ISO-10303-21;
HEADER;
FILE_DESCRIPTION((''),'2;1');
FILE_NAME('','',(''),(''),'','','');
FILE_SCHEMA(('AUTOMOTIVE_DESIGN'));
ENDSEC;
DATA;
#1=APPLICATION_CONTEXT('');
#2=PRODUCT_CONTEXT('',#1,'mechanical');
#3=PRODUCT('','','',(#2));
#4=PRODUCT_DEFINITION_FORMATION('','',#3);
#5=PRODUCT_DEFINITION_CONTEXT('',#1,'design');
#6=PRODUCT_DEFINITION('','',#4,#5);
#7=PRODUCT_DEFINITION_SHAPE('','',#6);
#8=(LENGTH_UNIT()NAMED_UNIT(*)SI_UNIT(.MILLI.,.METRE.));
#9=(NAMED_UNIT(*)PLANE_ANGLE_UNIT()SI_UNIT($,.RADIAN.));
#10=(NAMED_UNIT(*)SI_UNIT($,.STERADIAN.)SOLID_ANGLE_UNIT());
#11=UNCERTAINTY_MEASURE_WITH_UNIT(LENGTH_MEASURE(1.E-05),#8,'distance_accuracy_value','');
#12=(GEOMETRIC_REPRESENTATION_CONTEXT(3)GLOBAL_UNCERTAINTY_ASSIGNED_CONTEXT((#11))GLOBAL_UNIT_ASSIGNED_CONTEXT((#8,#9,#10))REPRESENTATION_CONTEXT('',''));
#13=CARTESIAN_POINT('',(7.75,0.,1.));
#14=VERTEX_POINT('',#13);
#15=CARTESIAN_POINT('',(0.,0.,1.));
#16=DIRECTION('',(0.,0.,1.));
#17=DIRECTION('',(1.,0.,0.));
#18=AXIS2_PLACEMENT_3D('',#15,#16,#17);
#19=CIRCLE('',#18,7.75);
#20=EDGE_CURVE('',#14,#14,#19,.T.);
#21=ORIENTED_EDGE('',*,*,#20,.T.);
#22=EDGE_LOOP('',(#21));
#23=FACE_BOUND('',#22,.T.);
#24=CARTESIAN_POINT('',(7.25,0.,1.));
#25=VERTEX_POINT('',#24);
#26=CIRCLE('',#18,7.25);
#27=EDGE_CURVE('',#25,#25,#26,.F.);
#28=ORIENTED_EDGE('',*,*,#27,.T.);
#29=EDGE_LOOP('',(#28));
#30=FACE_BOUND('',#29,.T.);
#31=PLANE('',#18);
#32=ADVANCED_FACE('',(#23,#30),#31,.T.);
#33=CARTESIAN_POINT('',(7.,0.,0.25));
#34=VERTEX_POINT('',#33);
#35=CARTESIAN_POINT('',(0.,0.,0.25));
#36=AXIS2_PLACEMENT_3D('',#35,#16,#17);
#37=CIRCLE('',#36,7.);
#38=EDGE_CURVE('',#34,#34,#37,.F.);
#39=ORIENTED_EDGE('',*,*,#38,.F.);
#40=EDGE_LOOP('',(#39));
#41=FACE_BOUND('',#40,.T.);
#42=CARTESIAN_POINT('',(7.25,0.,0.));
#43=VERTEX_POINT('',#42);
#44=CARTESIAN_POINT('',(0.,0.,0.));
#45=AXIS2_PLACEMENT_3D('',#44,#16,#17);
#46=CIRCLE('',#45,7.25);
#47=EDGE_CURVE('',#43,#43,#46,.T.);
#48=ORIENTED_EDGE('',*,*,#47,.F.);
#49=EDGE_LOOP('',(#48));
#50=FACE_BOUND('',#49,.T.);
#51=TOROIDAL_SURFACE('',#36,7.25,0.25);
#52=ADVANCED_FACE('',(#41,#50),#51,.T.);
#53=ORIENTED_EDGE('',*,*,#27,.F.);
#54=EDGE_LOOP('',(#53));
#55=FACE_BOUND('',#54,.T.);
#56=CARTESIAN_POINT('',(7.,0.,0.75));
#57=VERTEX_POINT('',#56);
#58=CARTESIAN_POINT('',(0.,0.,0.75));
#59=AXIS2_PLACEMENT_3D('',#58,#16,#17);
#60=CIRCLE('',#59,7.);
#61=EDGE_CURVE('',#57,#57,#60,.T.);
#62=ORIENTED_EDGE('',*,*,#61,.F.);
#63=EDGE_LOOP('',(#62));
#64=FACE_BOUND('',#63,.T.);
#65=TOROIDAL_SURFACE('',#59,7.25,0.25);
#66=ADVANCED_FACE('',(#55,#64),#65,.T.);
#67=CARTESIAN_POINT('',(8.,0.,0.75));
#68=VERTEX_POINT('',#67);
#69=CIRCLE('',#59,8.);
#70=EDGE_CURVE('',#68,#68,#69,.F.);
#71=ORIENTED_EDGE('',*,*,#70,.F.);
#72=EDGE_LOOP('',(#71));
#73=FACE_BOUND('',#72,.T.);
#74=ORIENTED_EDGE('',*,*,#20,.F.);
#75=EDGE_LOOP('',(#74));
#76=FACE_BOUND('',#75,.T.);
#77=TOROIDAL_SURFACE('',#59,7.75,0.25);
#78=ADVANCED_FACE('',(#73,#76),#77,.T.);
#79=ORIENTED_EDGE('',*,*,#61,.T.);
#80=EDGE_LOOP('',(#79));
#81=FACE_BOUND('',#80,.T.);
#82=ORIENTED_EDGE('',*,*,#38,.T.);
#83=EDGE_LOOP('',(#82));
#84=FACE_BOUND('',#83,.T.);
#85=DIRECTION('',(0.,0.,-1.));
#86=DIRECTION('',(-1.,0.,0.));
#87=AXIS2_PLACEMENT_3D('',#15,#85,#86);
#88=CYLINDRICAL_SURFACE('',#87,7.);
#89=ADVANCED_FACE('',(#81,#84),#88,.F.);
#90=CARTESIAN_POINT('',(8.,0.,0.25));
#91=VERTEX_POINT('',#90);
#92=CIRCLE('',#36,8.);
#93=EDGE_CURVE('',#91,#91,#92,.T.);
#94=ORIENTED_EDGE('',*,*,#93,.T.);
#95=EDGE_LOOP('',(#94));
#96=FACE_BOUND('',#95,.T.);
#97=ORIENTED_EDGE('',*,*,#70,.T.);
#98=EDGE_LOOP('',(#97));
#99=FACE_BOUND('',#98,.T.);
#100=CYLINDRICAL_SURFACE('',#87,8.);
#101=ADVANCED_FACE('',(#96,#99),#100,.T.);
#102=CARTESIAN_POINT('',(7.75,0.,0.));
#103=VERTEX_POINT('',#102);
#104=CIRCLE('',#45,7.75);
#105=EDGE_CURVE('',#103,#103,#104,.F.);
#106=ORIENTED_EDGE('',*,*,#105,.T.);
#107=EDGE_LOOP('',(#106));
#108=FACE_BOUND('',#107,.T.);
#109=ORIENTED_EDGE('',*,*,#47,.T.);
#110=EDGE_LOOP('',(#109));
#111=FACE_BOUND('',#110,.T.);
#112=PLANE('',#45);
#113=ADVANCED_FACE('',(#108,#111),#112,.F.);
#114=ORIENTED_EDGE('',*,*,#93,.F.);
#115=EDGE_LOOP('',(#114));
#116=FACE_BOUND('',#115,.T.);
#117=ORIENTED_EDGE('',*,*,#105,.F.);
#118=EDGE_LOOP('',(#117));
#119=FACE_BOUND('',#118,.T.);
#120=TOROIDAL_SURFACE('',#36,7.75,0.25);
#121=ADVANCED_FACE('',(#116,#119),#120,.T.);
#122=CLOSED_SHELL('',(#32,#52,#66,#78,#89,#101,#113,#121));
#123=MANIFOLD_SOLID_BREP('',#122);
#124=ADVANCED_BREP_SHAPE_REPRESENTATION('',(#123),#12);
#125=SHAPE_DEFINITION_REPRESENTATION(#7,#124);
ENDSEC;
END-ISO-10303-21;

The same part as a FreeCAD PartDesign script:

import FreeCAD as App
import Part
import Sketcher
from FreeCAD import Vector


def edges_at(feature, points):
    """Names of the edges that pass closest to the given points."""
    edges = feature.Shape.Edges
    near = lambda p: min(range(len(edges)), key=lambda i: edges[i].distToShape(Part.Vertex(*p))[0])
    return sorted({f"Edge{near(p) + 1}" for p in points})

doc = App.newDocument("Part")
params = doc.addObject("Spreadsheet::Sheet", "Params")
for row, (alias, value) in enumerate([
    ("sketch1_diameter", "16 mm"),
    ("sketch1_diameter2", "14 mm"),
    ("pad1_length", "1 mm"),
    ("fillet_radius", "0.25 mm"),
    ("fillet2_radius", "0.25 mm"),
    ("fillet3_radius", "0.25 mm"),
    ("fillet4_radius", "0.25 mm"),
], start=1):
    params.set(f"A{row}", alias)
    params.set(f"B{row}", "=" + value)
    params.setAlias(f"B{row}", alias)

body = doc.addObject("PartDesign::Body", "Body")

# Sketch on XY plane
sketch1 = doc.addObject("Sketcher::SketchObject", "Sketch")
body.addObject(sketch1)
sketch1.AttachmentSupport = (doc.XY_Plane, [""])
sketch1.MapMode = "FlatFace"
sketch1.addGeometry([
    Part.Circle(Vector(0, 0, 0), Vector(0, 0, 1), 8),
    Part.Circle(Vector(0, 0, 0), Vector(0, 0, 1), 7),
], False)
sketch1.addConstraint([
    Sketcher.Constraint("Coincident", 0, 3, -1, 1),
    Sketcher.Constraint("Coincident", 1, 3, -1, 1),
    Sketcher.Constraint("Diameter", 0, 16.0),
    Sketcher.Constraint("Diameter", 1, 14.0),
])
sketch1.setExpression("Constraints[2]", "Params.sketch1_diameter")
sketch1.setExpression("Constraints[3]", "Params.sketch1_diameter2")
pad1 = doc.addObject("PartDesign::Pad", "Pad")
body.addObject(pad1)
pad1.Profile = sketch1
pad1.setExpression("Length", "Params.pad1_length")
doc.recompute()

fillet = doc.addObject("PartDesign::Fillet", "Fillet")
body.addObject(fillet)
fillet.Base = (pad1, edges_at(pad1, [(-8, 0, 1)]))
fillet.setExpression("Radius", "Params.fillet_radius")
doc.recompute()

fillet2 = doc.addObject("PartDesign::Fillet", "Fillet001")
body.addObject(fillet2)
fillet2.Base = (fillet, edges_at(fillet, [(-7, 0, 1)]))
fillet2.setExpression("Radius", "Params.fillet2_radius")
doc.recompute()

fillet3 = doc.addObject("PartDesign::Fillet", "Fillet002")
body.addObject(fillet3)
fillet3.Base = (fillet2, edges_at(fillet2, [(-8, 0, 0)]))
fillet3.setExpression("Radius", "Params.fillet3_radius")
doc.recompute()

fillet4 = doc.addObject("PartDesign::Fillet", "Fillet003")
body.addObject(fillet4)
fillet4.Base = (fillet3, edges_at(fillet3, [(-7, 0, 0)]))
fillet4.setExpression("Radius", "Params.fillet4_radius")

doc.recompute()
